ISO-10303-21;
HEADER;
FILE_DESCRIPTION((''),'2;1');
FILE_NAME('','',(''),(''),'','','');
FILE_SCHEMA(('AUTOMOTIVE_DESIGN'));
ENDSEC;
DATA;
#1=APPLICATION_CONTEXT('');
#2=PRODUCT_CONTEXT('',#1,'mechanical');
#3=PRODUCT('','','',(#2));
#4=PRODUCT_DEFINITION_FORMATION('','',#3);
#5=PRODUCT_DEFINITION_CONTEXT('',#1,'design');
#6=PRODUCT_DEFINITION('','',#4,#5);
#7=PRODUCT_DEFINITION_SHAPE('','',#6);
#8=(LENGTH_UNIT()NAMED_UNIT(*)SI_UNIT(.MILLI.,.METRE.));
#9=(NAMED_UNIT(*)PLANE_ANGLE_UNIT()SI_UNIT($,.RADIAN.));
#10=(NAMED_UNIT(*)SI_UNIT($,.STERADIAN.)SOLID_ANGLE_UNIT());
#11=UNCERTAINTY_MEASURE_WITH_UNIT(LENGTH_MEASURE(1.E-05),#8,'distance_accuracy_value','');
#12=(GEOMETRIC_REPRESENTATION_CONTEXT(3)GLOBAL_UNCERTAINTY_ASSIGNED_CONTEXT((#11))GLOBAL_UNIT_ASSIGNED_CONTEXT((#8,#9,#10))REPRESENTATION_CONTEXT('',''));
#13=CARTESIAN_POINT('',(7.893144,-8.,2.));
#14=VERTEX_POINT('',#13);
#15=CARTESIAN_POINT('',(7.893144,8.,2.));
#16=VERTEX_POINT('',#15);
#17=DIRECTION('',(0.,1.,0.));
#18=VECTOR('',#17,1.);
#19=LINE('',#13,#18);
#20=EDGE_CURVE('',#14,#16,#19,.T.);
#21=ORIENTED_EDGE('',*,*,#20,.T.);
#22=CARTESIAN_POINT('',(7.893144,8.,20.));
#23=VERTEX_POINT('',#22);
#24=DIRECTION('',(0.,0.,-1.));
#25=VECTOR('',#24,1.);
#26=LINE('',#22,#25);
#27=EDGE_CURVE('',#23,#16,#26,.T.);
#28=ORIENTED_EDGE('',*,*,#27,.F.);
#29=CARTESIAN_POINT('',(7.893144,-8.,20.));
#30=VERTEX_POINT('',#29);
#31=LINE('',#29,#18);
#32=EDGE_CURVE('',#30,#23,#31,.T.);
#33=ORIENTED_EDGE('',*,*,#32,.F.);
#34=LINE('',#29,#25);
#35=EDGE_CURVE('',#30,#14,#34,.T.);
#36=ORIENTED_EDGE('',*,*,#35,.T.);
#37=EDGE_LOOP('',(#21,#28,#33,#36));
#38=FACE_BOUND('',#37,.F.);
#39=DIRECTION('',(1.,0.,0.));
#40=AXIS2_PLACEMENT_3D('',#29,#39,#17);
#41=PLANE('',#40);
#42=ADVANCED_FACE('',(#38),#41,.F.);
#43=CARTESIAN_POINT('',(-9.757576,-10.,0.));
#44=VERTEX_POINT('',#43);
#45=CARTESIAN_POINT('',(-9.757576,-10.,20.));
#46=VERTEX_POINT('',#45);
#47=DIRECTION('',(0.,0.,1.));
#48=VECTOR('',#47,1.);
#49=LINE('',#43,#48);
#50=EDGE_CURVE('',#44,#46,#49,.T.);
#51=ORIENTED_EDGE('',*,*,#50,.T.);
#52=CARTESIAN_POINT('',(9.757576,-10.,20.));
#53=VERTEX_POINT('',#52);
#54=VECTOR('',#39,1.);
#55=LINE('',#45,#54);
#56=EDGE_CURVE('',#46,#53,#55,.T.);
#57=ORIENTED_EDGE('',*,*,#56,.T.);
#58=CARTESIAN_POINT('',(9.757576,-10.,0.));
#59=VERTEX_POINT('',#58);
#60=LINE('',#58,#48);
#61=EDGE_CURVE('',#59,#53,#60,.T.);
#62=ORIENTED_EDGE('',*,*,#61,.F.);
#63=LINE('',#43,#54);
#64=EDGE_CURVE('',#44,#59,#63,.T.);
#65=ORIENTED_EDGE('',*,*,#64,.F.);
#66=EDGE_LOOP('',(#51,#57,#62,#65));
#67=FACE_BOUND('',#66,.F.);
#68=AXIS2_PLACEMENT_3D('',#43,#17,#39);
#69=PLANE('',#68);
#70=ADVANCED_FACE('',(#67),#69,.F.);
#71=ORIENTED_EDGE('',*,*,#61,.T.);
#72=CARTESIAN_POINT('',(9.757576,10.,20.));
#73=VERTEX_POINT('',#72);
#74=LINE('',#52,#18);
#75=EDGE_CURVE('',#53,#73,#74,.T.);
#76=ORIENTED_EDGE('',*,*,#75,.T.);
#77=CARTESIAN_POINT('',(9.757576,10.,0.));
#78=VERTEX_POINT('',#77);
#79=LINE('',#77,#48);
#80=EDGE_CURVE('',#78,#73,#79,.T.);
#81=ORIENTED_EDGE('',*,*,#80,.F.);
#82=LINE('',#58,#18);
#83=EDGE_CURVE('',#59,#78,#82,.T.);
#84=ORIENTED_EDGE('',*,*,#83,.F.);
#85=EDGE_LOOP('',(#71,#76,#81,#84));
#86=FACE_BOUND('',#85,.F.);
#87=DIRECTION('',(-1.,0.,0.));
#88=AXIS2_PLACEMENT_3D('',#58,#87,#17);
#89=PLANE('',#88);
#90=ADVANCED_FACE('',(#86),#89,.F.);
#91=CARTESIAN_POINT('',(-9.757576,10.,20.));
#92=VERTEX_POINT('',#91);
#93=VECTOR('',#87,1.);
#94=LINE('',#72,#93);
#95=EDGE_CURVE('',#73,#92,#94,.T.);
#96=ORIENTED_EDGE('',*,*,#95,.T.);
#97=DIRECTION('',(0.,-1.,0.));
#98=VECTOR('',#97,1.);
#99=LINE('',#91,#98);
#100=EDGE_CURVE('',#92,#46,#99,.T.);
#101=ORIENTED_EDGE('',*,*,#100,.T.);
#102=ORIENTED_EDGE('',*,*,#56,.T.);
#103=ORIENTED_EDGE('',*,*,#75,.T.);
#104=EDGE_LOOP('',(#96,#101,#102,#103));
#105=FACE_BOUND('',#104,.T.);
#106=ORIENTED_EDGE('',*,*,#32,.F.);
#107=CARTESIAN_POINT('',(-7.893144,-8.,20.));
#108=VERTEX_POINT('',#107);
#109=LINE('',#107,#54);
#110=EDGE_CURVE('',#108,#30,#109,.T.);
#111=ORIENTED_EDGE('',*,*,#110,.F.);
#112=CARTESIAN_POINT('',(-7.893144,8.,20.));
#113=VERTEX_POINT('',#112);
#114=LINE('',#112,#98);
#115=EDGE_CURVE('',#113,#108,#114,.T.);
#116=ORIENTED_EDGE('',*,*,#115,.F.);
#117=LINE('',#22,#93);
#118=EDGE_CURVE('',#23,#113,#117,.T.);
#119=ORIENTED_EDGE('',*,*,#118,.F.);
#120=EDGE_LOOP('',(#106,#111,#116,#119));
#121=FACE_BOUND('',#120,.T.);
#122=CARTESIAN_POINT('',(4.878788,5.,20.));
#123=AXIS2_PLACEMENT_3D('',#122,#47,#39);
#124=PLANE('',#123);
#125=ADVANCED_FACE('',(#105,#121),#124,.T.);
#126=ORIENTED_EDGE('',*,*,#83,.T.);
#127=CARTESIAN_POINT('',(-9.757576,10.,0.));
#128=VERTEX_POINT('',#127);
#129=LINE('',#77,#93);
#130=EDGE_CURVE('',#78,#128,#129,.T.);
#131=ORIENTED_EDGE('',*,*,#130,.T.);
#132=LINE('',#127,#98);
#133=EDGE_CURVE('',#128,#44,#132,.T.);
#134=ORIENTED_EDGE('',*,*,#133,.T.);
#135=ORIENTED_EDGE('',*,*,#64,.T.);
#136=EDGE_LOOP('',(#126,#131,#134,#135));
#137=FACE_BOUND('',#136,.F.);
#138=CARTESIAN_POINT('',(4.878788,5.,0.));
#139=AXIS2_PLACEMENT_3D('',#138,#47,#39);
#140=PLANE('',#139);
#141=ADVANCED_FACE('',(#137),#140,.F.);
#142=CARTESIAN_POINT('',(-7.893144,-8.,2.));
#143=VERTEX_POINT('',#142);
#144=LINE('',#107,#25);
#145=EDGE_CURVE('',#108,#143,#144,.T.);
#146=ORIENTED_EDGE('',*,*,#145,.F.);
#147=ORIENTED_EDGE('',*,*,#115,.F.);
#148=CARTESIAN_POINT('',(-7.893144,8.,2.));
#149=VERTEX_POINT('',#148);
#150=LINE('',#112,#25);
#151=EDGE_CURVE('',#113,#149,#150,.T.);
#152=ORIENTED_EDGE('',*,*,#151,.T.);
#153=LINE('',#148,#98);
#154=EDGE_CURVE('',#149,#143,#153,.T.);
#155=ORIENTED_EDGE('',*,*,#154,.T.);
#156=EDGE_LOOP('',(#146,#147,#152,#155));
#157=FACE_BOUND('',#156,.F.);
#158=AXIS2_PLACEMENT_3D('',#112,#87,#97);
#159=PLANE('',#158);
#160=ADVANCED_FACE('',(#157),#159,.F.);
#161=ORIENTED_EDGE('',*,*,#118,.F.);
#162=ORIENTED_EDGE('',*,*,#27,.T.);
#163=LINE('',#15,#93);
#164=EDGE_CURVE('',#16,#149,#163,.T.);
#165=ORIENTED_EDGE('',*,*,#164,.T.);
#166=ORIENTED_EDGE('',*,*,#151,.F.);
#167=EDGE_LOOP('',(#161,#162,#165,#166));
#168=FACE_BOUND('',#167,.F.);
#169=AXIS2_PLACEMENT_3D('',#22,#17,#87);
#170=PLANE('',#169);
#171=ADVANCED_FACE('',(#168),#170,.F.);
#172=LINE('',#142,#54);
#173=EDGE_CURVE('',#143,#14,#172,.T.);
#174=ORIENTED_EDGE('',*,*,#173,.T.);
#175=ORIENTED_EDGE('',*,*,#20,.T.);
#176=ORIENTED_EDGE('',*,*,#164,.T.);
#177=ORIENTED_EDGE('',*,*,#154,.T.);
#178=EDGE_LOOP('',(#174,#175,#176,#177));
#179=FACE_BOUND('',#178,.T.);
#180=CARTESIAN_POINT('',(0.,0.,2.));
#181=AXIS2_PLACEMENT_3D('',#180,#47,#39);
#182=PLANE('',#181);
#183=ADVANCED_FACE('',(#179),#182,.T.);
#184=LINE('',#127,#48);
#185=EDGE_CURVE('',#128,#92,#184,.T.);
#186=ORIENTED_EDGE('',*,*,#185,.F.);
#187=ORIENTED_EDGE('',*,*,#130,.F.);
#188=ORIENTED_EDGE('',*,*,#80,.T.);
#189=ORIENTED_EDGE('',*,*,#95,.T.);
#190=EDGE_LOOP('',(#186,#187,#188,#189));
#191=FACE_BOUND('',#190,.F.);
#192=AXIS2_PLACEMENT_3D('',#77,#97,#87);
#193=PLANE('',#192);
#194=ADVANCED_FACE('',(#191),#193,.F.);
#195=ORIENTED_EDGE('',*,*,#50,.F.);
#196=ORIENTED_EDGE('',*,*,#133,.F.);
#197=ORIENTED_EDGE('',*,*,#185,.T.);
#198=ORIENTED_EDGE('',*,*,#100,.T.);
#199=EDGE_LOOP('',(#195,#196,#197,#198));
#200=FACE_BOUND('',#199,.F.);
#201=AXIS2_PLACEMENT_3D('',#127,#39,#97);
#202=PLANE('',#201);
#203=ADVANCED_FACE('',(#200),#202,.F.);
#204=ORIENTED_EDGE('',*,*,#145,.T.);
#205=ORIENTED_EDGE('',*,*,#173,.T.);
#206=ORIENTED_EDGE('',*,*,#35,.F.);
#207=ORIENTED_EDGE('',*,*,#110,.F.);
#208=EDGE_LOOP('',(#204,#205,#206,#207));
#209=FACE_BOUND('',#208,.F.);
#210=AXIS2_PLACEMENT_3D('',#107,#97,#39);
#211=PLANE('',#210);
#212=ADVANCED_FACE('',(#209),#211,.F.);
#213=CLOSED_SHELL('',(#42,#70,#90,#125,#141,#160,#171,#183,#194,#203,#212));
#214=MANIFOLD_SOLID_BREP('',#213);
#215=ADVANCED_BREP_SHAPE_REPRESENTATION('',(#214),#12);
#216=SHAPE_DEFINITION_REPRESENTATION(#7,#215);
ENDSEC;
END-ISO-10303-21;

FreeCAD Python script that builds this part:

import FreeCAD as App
import Part
import Sketcher
from FreeCAD import Vector

doc = App.newDocument("Part")
params = doc.addObject("Spreadsheet::Sheet", "Params")
for row, (alias, value) in enumerate([
    ("sketch1_height", "20 mm"),
    ("pad1_length", "20 mm"),
    ("sketch2_height", "16 mm"),
    ("pocket1_length", "18 mm"),
], start=1):
    params.set(f"A{row}", alias)
    params.set(f"B{row}", "=" + value)
    params.setAlias(f"B{row}", alias)

body = doc.addObject("PartDesign::Body", "Body")

# Sketch on XY plane
sketch1 = doc.addObject("Sketcher::SketchObject", "Sketch")
body.addObject(sketch1)
sketch1.AttachmentSupport = (doc.XY_Plane, [""])
sketch1.MapMode = "FlatFace"
sketch1.addGeometry([
    Part.LineSegment(Vector(10, -10, 0), Vector(10, 10, 0)),
    Part.LineSegment(Vector(10, 10, 0), Vector(-10, 10, 0)),
    Part.LineSegment(Vector(-10, 10, 0), Vector(-10, -10, 0)),
    Part.LineSegment(Vector(-10, -10, 0), Vector(10, -10, 0)),
], False)
sketch1.addConstraint([
    Sketcher.Constraint("Coincident", 0, 2, 1, 1),
    Sketcher.Constraint("Coincident", 1, 2, 2, 1),
    Sketcher.Constraint("Coincident", 2, 2, 3, 1),
    Sketcher.Constraint("Coincident", 3, 2, 0, 1),
    Sketcher.Constraint("Vertical", 0),
    Sketcher.Constraint("Horizontal", 1),
    Sketcher.Constraint("Vertical", 2),
    Sketcher.Constraint("Horizontal", 3),
    Sketcher.Constraint("Symmetric", 0, 2, 2, 2, -1, 1),
    Sketcher.Constraint("DistanceY", 0, 1, 0, 2, 20.0),
    Sketcher.Constraint("DistanceX", 1, 2, 1, 1, 19.515152),
])
sketch1.setExpression("Constraints[9]", "Params.sketch1_height")
pad1 = doc.addObject("PartDesign::Pad", "Pad")
body.addObject(pad1)
pad1.Profile = sketch1
pad1.setExpression("Length", "Params.pad1_length")

# Sketch on XY plane
sketch2 = doc.addObject("Sketcher::SketchObject", "Sketch001")
body.addObject(sketch2)
sketch2.AttachmentSupport = (doc.XY_Plane, [""])
sketch2.MapMode = "FlatFace"
sketch2.AttachmentOffset = App.Placement(Vector(0, 0, 20), App.Rotation())
sketch2.addGeometry([
    Part.LineSegment(Vector(8, 8, 0), Vector(-8, 8, 0)),
    Part.LineSegment(Vector(-8, 8, 0), Vector(-8, -8, 0)),
    Part.LineSegment(Vector(-8, -8, 0), Vector(8, -8, 0)),
    Part.LineSegment(Vector(8, -8, 0), Vector(8, 8, 0)),
], False)
sketch2.addConstraint([
    Sketcher.Constraint("Coincident", 0, 2, 1, 1),
    Sketcher.Constraint("Coincident", 1, 2, 2, 1),
    Sketcher.Constraint("Coincident", 2, 2, 3, 1),
    Sketcher.Constraint("Coincident", 3, 2, 0, 1),
    Sketcher.Constraint("Horizontal", 0),
    Sketcher.Constraint("Vertical", 1),
    Sketcher.Constraint("Horizontal", 2),
    Sketcher.Constraint("Vertical", 3),
    Sketcher.Constraint("Symmetric", 0, 2, 2, 2, -1, 1),
    Sketcher.Constraint("DistanceY", 1, 2, 1, 1, 16.0),
    Sketcher.Constraint("DistanceX", 0, 2, 0, 1, 15.786288),
])
sketch2.setExpression("Constraints[9]", "Params.sketch2_height")
pocket1 = doc.addObject("PartDesign::Pocket", "Pocket")
body.addObject(pocket1)
pocket1.Profile = sketch2
pocket1.setExpression("Length", "Params.pocket1_length")

doc.recompute()
